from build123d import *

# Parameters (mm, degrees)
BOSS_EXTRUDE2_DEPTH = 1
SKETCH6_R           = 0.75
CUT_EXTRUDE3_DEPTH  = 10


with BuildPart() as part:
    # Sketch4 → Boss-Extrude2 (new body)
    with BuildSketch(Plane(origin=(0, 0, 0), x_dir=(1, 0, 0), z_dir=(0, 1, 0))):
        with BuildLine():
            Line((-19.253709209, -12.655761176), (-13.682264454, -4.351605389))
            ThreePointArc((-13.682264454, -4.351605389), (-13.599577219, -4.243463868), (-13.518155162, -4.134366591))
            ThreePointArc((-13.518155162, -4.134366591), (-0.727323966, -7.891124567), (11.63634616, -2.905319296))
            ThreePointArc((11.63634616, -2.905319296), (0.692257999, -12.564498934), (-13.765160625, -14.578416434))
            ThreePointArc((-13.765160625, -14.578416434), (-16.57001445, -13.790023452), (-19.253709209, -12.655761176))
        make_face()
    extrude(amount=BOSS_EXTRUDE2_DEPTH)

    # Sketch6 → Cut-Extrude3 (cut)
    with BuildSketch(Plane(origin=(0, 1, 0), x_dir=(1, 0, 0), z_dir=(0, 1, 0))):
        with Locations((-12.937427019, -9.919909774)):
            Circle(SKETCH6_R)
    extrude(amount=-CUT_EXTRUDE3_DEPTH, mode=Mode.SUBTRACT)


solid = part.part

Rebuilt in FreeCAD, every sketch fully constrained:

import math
import FreeCAD as App
import Part
import Sketcher
Q = App.Units.Quantity

doc = App.newDocument("Part")
params = doc.addObject("Spreadsheet::Sheet", "Params")
for row, (alias, value) in enumerate([
    ("sketch1_length", "10 mm"),
    ("pad1_length", "1 mm"),
    ("sketch2_diameter", "1.5 mm"),
    ("pocket1_length", "10 mm"),
], start=1):
    params.set(f"A{row}", alias)
    params.set(f"B{row}", "=" + value)
    params.setAlias(f"B{row}", alias)

body = doc.addObject("PartDesign::Body", "Body")

sketch1 = body.newObject("Sketcher::SketchObject", "Sketch")
sketch1.AttachmentSupport = (doc.getObject("XZ_Plane"), [""])
sketch1.MapMode = "FlatFace"
sketch1.addGeometry(Part.LineSegment(App.Vector(-13.68, 4.35, 0), App.Vector(-19.25, 12.66, 0)), False)
sketch1.addGeometry(Part.ArcOfCircle(Part.Circle(App.Vector(-8.91, -8.07, 0), App.Vector(0, 0, 1), 23.16), math.radians(102.09), math.radians(116.52)), False)
sketch1.addGeometry(Part.ArcOfCircle(Part.Circle(App.Vector(-9.88, -10.45, 0), App.Vector(0, 0, 1), 25.32), math.radians(32), math.radians(99)), False)
sketch1.addGeometry(Part.ArcOfCircle(Part.Circle(App.Vector(-1.72, -12.39, 0), App.Vector(0, 0, 1), 20.3), math.radians(49), math.radians(126)), False)
sketch1.addGeometry(Part.ArcOfCircle(Part.Circle(App.Vector(-22.93, -2.8, 0), App.Vector(0, 0, 1), 11.69), math.radians(36.4), math.radians(37.74)), False)
sketch1.addConstraint(Sketcher.Constraint("Coincident", 0, 2, 1, 2))
sketch1.addConstraint(Sketcher.Constraint("Coincident", 1, 1, 2, 2))
sketch1.addConstraint(Sketcher.Constraint("Coincident", 2, 1, 3, 1))
sketch1.addConstraint(Sketcher.Constraint("Coincident", 3, 2, 4, 1))
sketch1.addConstraint(Sketcher.Constraint("Coincident", 4, 2, 0, 1))
sketch1.addConstraint(Sketcher.Constraint("Distance", 0, Q("10 mm")))
sketch1.addConstraint(Sketcher.Constraint("Radius", 4, Q("11.687502 mm")))
sketch1.addConstraint(Sketcher.Constraint("Radius", 2, Q("25.32394 mm")))
sketch1.addConstraint(Sketcher.Constraint("Radius", 1, Q("23.163195 mm")))
sketch1.addConstraint(Sketcher.Constraint("Radius", 3, Q("20.303752 mm")))
sketch1.addConstraint(Sketcher.Constraint("DistanceY", 1, 3, 1, 1, Q("22.649101 mm")))
sketch1.addConstraint(Sketcher.Constraint("DistanceX", 1, 3, -1, 1, Q("8.912142 mm")))
sketch1.addConstraint(Sketcher.Constraint("DistanceX", 2, 3, -1, 1, Q("9.882088 mm")))
sketch1.addConstraint(Sketcher.Constraint("DistanceX", 3, 3, -1, 1, Q("1.718182 mm")))
sketch1.addConstraint(Sketcher.Constraint("DistanceY", 4, 3, -1, 1, Q("2.80142 mm")))
sketch1.addConstraint(Sketcher.Constraint("DistanceX", 0, 2, -1, 1, Q("19.253709 mm")))
sketch1.addConstraint(Sketcher.Constraint("DistanceY", -1, 1, 0, 2, Q("12.655761 mm")))
sketch1.addConstraint(Sketcher.Constraint("DistanceY", -1, 1, 2, 1, Q("2.905319 mm")))
sketch1.addConstraint(Sketcher.Constraint("DistanceX", 4, 3, 3, 3, Q("21.207022 mm")))
sketch1.setExpression("Constraints[5]", "Params.sketch1_length")
pad1 = body.newObject("PartDesign::Pad", "Pad")
pad1.Profile = sketch1
pad1.setExpression("Length", "Params.pad1_length")
pad1.Reversed = True

sketch2 = body.newObject("Sketcher::SketchObject", "Sketch001")
sketch2.AttachmentSupport = (doc.getObject("XZ_Plane"), [""])
sketch2.MapMode = "FlatFace"
sketch2.AttachmentOffset = App.Placement(App.Vector(0, 0, -1), App.Rotation())
sketch2.addGeometry(Part.Circle(App.Vector(-12.9, 9.9, 0), App.Vector(0, 0, 1), 0.8), False)
sketch2.addConstraint(Sketcher.Constraint("Diameter", 0, Q("1.5 mm")))
sketch2.addConstraint(Sketcher.Constraint("DistanceY", -1, 1, 0, 3, Q("9.91991 mm")))
sketch2.addConstraint(Sketcher.Constraint("DistanceX", 0, 3, -1, 1, Q("12.937427 mm")))
sketch2.setExpression("Constraints[0]", "Params.sketch2_diameter")
pocket1 = body.newObject("PartDesign::Pocket", "Pocket")
pocket1.Profile = sketch2
pocket1.setExpression("Length", "Params.pocket1_length")
pocket1.Reversed = True

doc.recompute()
